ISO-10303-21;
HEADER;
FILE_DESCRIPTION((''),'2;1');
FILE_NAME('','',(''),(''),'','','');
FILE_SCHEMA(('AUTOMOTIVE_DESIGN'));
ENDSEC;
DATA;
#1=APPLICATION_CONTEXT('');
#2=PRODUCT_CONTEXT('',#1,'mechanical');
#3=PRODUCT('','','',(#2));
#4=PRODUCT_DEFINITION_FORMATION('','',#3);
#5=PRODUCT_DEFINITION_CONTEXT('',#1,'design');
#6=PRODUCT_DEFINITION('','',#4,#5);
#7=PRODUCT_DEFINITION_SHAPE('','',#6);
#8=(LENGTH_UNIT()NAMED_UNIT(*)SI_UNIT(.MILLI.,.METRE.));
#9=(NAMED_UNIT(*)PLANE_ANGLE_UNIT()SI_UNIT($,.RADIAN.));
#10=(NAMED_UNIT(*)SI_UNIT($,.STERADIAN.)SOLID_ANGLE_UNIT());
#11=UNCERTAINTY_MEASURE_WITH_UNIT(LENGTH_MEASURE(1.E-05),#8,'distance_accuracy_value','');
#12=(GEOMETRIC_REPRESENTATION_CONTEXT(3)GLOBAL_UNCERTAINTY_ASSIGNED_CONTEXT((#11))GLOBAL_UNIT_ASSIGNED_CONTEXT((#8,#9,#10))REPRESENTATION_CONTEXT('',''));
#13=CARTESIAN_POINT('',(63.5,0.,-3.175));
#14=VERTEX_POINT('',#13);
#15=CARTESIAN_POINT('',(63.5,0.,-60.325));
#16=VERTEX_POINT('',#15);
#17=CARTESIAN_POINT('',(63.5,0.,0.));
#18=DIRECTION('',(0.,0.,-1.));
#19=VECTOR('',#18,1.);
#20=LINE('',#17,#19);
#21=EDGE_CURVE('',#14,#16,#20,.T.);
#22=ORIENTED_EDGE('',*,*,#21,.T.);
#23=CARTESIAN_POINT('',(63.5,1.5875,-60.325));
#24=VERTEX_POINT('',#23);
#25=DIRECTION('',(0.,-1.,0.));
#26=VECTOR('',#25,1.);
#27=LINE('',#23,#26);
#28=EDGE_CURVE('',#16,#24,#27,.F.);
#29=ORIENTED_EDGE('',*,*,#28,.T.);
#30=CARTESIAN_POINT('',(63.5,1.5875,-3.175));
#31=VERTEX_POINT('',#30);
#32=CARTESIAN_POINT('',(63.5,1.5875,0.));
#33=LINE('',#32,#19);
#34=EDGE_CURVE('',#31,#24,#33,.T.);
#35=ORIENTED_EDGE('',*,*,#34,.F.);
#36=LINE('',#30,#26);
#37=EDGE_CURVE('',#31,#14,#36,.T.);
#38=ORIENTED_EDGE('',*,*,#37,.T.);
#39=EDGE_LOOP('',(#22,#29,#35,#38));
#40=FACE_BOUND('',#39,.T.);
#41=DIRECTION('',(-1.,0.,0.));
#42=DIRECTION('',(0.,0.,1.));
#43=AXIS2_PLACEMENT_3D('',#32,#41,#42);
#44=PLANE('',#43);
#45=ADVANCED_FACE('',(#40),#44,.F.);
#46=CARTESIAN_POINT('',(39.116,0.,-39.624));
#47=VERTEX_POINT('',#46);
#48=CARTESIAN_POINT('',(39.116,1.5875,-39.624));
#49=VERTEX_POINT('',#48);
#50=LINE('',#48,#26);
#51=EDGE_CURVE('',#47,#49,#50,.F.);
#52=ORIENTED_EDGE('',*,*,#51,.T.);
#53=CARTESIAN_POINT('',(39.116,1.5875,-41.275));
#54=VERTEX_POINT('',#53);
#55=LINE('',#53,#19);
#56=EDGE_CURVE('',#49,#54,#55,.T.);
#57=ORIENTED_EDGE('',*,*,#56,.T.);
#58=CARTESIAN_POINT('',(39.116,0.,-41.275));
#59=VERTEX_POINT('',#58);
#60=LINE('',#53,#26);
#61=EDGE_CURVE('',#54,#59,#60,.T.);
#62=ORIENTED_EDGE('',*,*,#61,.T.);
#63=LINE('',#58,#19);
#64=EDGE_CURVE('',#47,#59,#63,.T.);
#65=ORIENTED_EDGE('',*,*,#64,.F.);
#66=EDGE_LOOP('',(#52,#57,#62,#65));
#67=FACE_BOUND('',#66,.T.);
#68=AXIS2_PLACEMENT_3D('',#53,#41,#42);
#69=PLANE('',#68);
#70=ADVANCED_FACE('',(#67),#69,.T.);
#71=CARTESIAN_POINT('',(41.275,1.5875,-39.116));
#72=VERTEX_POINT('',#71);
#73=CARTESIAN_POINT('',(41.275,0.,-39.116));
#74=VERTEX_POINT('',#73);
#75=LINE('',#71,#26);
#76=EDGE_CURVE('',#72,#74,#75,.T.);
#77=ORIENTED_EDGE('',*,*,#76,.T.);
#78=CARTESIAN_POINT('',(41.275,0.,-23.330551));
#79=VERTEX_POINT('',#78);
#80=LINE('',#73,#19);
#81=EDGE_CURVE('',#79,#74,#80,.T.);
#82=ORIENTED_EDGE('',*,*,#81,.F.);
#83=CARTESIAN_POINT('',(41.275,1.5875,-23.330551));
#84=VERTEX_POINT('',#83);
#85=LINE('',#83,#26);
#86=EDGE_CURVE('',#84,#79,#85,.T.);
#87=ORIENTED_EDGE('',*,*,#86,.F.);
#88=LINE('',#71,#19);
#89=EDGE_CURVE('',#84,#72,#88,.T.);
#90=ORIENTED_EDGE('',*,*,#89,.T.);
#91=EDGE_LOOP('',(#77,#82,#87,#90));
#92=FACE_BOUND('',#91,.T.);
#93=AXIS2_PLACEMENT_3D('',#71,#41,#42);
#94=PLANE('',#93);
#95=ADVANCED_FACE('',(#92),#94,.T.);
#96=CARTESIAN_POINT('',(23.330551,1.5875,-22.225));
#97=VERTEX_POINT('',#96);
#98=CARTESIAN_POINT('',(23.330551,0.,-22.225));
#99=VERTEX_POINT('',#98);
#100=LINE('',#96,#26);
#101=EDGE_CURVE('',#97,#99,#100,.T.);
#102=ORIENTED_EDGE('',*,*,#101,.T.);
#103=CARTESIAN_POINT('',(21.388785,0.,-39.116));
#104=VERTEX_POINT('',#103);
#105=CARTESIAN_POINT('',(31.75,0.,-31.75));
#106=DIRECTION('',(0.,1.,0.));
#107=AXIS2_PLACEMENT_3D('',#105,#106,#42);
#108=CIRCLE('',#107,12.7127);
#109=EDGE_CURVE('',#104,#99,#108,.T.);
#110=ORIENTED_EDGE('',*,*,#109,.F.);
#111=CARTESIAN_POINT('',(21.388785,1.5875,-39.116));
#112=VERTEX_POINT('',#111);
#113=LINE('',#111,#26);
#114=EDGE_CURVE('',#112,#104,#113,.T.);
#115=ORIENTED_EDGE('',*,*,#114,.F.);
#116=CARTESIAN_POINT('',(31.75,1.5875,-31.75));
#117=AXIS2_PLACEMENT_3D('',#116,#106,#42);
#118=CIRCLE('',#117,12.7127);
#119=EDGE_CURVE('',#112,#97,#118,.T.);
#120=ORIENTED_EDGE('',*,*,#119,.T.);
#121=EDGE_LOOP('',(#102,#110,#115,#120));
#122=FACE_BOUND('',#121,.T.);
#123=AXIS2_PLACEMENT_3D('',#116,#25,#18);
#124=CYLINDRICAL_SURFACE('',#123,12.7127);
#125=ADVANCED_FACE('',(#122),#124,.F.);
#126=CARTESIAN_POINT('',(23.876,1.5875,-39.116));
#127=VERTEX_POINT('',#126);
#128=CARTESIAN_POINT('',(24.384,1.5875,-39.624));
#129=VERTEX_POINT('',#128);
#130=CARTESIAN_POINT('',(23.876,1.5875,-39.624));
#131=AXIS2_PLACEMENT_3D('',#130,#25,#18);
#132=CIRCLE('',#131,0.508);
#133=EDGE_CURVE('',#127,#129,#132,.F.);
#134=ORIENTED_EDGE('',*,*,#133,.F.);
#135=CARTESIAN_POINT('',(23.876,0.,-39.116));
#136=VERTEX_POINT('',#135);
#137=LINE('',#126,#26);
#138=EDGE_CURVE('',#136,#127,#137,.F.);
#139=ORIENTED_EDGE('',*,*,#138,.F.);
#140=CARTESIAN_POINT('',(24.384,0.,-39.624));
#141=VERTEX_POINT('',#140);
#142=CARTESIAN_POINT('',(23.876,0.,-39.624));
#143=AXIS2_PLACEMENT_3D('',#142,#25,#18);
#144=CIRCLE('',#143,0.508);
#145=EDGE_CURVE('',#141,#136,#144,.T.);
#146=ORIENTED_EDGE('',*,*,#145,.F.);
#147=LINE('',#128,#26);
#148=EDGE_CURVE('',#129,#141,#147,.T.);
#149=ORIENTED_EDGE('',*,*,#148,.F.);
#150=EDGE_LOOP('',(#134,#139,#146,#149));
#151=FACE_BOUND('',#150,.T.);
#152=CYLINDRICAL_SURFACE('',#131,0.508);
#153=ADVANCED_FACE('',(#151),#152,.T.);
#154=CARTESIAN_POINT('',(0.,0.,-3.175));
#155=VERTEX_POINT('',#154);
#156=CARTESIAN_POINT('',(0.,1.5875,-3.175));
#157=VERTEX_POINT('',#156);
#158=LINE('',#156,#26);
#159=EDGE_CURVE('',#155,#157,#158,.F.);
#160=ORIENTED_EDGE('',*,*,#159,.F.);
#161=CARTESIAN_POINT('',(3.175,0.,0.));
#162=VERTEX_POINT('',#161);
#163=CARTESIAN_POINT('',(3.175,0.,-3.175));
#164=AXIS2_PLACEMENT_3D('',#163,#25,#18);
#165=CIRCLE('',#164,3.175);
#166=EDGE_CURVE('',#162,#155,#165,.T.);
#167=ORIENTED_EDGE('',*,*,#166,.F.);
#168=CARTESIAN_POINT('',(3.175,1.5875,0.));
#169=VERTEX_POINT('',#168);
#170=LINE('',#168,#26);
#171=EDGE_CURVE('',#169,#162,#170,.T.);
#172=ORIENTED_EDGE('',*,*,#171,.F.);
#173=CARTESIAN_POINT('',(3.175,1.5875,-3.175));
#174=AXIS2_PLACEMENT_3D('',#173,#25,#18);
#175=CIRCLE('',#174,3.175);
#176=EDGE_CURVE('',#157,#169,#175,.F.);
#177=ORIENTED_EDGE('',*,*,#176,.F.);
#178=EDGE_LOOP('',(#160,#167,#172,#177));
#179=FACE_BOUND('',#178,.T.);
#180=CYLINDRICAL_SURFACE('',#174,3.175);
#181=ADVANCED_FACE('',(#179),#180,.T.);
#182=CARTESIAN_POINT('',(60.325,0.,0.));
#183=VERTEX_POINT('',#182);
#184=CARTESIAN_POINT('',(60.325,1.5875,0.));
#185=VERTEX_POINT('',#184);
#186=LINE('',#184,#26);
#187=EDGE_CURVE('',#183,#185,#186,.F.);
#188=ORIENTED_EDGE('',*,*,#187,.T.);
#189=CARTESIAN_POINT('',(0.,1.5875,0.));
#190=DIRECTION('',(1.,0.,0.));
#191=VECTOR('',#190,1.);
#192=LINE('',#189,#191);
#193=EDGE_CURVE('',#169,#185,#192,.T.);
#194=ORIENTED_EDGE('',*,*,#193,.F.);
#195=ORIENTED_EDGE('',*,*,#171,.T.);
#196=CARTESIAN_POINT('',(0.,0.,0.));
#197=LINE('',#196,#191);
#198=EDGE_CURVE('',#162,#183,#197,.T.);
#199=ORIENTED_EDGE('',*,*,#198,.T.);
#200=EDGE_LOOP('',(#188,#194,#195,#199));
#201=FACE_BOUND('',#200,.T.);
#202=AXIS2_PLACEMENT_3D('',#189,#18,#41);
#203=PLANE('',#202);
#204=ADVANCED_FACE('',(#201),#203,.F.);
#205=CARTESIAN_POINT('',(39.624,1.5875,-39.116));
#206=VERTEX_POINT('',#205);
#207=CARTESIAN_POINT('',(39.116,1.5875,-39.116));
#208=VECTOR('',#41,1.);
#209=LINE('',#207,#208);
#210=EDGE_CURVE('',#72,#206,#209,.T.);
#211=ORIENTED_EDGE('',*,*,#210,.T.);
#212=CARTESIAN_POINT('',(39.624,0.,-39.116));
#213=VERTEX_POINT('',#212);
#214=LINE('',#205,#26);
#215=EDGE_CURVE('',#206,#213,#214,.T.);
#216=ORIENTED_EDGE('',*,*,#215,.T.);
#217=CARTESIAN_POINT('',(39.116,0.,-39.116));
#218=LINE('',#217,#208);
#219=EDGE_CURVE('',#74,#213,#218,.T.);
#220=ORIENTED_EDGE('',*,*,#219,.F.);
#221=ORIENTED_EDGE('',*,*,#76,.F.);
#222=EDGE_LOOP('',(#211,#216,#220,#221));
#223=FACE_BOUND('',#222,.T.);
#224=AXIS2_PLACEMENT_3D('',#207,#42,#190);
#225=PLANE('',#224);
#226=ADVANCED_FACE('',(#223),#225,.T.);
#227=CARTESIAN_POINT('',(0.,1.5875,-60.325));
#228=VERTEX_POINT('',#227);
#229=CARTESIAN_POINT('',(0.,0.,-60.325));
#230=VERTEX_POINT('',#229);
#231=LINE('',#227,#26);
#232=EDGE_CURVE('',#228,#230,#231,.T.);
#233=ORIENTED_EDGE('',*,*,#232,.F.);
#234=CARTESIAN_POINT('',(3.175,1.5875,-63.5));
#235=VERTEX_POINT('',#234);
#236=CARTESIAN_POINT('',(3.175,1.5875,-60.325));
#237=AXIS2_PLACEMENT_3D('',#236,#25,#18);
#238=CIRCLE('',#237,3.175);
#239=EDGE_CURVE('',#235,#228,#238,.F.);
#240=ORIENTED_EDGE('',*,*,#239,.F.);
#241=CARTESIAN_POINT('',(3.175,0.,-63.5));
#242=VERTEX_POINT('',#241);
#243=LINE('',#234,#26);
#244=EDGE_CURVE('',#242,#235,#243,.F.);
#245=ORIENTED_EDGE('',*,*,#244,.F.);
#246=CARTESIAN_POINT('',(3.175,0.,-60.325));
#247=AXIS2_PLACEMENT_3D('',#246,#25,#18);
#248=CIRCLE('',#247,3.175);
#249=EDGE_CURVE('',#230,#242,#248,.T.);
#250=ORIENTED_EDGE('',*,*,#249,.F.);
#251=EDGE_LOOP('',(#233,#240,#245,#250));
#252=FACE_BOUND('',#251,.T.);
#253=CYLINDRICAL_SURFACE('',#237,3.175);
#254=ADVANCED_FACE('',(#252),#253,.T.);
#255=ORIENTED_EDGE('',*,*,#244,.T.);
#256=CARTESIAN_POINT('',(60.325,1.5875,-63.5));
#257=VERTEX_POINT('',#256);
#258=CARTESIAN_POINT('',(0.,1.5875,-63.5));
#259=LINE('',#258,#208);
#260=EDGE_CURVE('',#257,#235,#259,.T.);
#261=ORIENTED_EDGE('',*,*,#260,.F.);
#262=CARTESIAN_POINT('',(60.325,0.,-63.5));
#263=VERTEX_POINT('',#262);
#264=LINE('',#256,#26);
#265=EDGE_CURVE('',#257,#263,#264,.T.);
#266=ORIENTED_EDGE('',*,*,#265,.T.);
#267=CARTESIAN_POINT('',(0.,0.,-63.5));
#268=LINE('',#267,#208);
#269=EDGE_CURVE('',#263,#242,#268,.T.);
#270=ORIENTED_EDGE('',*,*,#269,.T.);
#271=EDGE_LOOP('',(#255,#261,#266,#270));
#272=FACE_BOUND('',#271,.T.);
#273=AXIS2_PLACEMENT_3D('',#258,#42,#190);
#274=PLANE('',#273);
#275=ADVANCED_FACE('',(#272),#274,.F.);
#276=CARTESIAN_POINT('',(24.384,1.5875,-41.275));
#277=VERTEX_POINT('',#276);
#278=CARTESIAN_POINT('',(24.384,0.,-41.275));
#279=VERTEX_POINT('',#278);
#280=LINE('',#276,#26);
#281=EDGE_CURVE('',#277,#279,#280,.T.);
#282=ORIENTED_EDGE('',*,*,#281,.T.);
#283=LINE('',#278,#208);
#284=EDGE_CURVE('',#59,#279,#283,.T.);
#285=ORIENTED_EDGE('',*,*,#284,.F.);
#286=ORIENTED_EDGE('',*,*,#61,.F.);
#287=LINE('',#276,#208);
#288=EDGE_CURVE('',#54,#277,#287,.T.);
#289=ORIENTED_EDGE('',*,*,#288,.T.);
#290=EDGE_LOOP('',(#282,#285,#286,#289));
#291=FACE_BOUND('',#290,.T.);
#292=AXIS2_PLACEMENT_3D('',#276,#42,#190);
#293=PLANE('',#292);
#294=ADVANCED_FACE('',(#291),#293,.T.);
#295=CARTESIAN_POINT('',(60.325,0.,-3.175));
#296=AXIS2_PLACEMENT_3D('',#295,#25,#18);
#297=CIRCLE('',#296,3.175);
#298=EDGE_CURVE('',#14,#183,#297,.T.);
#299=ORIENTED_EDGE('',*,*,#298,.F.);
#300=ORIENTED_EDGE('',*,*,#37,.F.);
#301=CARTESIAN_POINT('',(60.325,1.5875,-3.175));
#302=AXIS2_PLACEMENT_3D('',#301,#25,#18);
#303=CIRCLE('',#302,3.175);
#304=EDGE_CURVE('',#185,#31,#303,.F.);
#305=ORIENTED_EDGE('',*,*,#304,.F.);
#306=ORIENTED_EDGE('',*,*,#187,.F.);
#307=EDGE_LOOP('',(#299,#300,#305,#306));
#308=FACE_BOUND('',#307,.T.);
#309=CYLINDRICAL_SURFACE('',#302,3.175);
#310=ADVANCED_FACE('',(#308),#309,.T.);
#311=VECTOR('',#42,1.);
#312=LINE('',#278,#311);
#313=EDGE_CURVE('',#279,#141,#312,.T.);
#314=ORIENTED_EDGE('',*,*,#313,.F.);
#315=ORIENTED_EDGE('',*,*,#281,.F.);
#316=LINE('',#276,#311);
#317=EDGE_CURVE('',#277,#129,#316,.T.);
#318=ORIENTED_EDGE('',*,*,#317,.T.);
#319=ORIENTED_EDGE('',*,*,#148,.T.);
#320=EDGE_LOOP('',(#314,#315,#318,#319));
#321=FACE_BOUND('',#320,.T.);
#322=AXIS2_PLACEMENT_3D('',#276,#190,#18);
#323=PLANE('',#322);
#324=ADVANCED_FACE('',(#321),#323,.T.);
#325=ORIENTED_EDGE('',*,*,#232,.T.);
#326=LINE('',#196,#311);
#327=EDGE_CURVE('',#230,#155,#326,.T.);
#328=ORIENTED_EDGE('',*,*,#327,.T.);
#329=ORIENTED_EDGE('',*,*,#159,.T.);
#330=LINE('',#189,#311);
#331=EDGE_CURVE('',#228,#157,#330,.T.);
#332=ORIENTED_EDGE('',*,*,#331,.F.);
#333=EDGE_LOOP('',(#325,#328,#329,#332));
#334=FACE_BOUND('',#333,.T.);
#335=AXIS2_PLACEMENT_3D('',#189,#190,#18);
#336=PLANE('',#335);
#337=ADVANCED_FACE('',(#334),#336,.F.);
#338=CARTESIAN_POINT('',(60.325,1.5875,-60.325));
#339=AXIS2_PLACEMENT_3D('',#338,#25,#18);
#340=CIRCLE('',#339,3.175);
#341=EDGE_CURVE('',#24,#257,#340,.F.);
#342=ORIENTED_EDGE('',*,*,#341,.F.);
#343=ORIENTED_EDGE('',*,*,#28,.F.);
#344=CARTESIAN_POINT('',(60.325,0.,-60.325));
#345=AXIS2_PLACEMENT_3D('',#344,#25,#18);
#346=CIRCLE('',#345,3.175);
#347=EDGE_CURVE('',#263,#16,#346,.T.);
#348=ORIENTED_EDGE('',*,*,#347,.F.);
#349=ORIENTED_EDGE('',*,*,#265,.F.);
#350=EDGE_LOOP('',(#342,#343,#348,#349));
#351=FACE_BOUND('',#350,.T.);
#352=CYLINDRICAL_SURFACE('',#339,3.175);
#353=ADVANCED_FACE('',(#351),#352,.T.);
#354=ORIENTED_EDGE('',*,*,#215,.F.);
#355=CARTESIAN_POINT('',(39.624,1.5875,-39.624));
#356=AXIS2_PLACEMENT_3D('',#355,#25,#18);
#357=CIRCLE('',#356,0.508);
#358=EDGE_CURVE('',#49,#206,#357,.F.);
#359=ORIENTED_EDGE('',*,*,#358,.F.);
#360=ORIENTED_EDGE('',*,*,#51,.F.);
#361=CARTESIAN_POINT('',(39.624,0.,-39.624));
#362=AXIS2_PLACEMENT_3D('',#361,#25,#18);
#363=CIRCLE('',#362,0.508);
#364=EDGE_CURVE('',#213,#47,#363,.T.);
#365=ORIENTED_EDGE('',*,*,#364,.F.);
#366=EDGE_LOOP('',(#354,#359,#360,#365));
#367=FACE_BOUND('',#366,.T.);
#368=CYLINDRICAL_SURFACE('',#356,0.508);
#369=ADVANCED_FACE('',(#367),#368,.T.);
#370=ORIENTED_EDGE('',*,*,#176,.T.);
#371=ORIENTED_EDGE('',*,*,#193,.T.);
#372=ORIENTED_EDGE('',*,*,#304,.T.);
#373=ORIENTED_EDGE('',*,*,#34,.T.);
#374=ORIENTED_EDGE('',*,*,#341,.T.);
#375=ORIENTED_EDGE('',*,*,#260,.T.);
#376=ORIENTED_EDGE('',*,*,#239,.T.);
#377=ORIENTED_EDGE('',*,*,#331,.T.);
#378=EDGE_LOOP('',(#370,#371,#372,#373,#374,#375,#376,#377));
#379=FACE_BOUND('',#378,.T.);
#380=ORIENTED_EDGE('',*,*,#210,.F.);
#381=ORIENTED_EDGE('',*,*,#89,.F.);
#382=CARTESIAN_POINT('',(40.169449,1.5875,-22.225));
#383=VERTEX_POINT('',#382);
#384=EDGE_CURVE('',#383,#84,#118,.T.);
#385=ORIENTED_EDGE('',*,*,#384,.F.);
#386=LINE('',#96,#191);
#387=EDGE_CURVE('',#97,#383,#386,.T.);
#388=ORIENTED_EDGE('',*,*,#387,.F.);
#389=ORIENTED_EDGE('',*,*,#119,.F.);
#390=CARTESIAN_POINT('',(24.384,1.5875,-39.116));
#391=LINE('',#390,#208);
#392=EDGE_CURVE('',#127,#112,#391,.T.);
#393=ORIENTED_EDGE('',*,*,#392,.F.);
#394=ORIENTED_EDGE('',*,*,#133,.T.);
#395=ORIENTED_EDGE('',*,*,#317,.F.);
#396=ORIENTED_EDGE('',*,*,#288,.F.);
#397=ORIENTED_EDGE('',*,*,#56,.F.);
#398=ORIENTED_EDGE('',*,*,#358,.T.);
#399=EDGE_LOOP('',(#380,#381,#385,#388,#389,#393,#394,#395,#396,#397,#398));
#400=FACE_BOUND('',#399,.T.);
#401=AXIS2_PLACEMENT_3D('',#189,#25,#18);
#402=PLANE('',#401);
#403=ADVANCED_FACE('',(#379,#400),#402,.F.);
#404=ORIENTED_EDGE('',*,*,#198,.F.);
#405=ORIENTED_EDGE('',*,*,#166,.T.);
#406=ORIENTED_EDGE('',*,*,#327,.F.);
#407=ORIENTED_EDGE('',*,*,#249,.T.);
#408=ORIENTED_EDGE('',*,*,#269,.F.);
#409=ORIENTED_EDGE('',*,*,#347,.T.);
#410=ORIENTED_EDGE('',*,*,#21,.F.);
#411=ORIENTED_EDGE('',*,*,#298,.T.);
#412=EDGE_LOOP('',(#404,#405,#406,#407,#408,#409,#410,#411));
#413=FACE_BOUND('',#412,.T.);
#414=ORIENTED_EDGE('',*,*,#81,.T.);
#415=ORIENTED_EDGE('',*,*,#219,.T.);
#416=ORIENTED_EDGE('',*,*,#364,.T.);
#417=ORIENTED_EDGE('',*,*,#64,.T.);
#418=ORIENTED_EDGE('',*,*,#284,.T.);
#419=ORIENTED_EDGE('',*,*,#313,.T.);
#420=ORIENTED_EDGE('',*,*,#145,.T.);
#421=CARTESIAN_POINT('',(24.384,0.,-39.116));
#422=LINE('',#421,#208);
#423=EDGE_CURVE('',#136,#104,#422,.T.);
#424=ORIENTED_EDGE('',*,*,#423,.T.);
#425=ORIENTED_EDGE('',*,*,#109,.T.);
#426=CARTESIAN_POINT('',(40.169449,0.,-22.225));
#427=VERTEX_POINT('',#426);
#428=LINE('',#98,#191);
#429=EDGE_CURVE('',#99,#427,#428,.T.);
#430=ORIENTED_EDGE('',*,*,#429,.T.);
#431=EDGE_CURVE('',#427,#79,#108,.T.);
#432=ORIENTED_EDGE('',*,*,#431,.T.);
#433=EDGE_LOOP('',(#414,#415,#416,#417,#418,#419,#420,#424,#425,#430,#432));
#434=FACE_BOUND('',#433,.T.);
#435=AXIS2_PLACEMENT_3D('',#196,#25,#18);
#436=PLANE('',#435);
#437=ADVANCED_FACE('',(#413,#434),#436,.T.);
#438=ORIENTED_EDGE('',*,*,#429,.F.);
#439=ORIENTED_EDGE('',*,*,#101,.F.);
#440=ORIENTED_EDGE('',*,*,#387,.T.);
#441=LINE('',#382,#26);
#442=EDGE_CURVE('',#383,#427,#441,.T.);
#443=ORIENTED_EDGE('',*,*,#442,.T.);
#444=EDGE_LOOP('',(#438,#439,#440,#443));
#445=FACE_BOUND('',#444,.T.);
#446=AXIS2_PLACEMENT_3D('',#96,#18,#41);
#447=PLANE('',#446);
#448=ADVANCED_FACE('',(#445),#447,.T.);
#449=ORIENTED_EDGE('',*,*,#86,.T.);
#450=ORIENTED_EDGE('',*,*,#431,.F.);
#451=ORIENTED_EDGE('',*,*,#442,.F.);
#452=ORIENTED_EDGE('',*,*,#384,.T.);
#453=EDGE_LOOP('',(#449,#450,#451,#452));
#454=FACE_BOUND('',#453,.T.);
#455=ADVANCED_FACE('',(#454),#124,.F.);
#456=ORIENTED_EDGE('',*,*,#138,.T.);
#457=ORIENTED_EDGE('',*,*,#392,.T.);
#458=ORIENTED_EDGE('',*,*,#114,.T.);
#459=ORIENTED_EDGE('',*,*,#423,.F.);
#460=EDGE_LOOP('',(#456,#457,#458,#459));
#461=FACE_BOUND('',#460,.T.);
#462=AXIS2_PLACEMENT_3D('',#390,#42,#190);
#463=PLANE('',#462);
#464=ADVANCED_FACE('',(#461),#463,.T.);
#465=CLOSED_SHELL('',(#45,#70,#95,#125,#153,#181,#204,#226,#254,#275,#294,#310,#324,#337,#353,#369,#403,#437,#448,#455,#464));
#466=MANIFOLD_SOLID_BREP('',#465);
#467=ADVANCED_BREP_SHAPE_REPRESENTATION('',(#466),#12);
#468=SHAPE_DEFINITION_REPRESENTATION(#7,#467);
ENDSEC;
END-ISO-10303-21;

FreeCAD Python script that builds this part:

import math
import FreeCAD as App
import Part
import Sketcher
from FreeCAD import Vector
Q = App.Units.Quantity


def edges_at(feature, points):
    """Names of the edges that pass closest to the given points."""
    edges = feature.Shape.Edges
    near = lambda p: min(range(len(edges)), key=lambda i: edges[i].distToShape(Part.Vertex(*p))[0])
    return sorted({f"Edge{near(p) + 1}" for p in points})


def add_polygon(sketch, points):
    """Adds a closed chain of lines whose ends are joined by coincident constraints."""
    first, n = sketch.GeometryCount, len(points)
    for a, b in zip(points, points[1:] + points[:1]):
        sketch.addGeometry(Part.LineSegment(App.Vector(*a, 0), App.Vector(*b, 0)), False)
    for i in range(n):
        sketch.addConstraint(Sketcher.Constraint("Coincident", first + i, 2, first + (i + 1) % n, 1))

doc = App.newDocument("Part")
body = doc.addObject("PartDesign::Body", "Body")

# Sketch on XZ plane
sketch1 = body.newObject("Sketcher::SketchObject", "Sketch")
sketch1.AttachmentSupport = (doc.getObject("XZ_Plane"), [""])
sketch1.MapMode = "FlatFace"
add_polygon(sketch1, [(0, -63.5), (0, 0), (63.5, 0), (63.5, -63.5)])  # lines 0-3
sketch1.addGeometry(Part.LineSegment(Vector(24.4, -39.1, 0), Vector(24.4, -41.3, 0)), False)  # 4
sketch1.addGeometry(Part.LineSegment(Vector(24.4, -41.3, 0), Vector(39.1, -41.3, 0)), False)  # 5
sketch1.addGeometry(Part.LineSegment(Vector(39.1, -41.3, 0), Vector(39.1, -39.1, 0)), False)  # 6
sketch1.addGeometry(Part.LineSegment(Vector(39.1, -39.1, 0), Vector(41.3, -39.1, 0)), False)  # 7
sketch1.addGeometry(Part.LineSegment(Vector(41.3, -39.1, 0), Vector(41.3, -23.3, 0)), False)  # 8
sketch1.addGeometry(Part.ArcOfCircle(Part.Circle(Vector(31.7, -31.8, 0), Vector(0, 0, 1), 12.7), math.radians(41.47), math.radians(48.53)), False)  # 9
sketch1.addGeometry(Part.LineSegment(Vector(40.2, -22.2, 0), Vector(23.3, -22.2, 0)), False)  # 10
sketch1.addGeometry(Part.ArcOfCircle(Part.Circle(Vector(31.8, -31.8, 0), Vector(0, 0, 1), 12.7), math.radians(131), math.radians(215)), False)  # 11
sketch1.addGeometry(Part.LineSegment(Vector(21.4, -39.1, 0), Vector(24.4, -39.1, 0)), False)  # 12
sketch1.addConstraint(Sketcher.Constraint("Coincident", 4, 2, 5, 1))
sketch1.addConstraint(Sketcher.Constraint("Coincident", 5, 2, 6, 1))
sketch1.addConstraint(Sketcher.Constraint("Coincident", 6, 2, 7, 1))
sketch1.addConstraint(Sketcher.Constraint("Coincident", 7, 2, 8, 1))
sketch1.addConstraint(Sketcher.Constraint("Coincident", 8, 2, 9, 1))
sketch1.addConstraint(Sketcher.Constraint("Coincident", 9, 2, 10, 1))
sketch1.addConstraint(Sketcher.Constraint("Coincident", 10, 2, 11, 1))
sketch1.addConstraint(Sketcher.Constraint("Coincident", 11, 2, 12, 1))
sketch1.addConstraint(Sketcher.Constraint("Coincident", 12, 2, 4, 1))
sketch1.addConstraint(Sketcher.Constraint("Vertical", 0))
sketch1.addConstraint(Sketcher.Constraint("Horizontal", 1))
sketch1.addConstraint(Sketcher.Constraint("Vertical", 2))
sketch1.addConstraint(Sketcher.Constraint("Horizontal", 3))
sketch1.addConstraint(Sketcher.Constraint("Vertical", 4))
sketch1.addConstraint(Sketcher.Constraint("Horizontal", 5))
sketch1.addConstraint(Sketcher.Constraint("Vertical", 6))
sketch1.addConstraint(Sketcher.Constraint("Horizontal", 7))
sketch1.addConstraint(Sketcher.Constraint("Vertical", 8))
sketch1.addConstraint(Sketcher.Constraint("Horizontal", 10))
sketch1.addConstraint(Sketcher.Constraint("Horizontal", 12))
sketch1.addConstraint(Sketcher.Constraint("Coincident", 0, 2, -1, 1))
sketch1.addConstraint(Sketcher.Constraint("Coincident", 11, 3, 9, 3))
sketch1.addConstraint(Sketcher.Constraint("Equal", 9, 11))
sketch1.addConstraint(Sketcher.Constraint("Horizontal", 7, 2, 11, 2))
sketch1.addConstraint(Sketcher.Constraint("Equal", 3, 0))
sketch1.addConstraint(Sketcher.Constraint("Equal", 7, 4))
sketch1.addConstraint(Sketcher.Constraint("DistanceX", 1, 1, 1, 2, Q("2.5 in")))
sketch1.addConstraint(Sketcher.Constraint("DistanceX", 5, 1, 5, 2, Q("0.58 in")))
sketch1.addConstraint(Sketcher.Constraint("Radius", 9, Q("0.5005 in")))
sketch1.addConstraint(Sketcher.Constraint("DistanceX", 7, 1, 7, 2, Q("0.085 in")))
sketch1.addConstraint(Sketcher.Constraint("DistanceX", -1, 1, 9, 3, Q("1.25 in")))
sketch1.addConstraint(Sketcher.Constraint("DistanceY", 9, 3, -1, 1, Q("1.25 in")))
sketch1.addConstraint(Sketcher.Constraint("DistanceX", -1, 1, 4, 2, Q("0.96 in")))
sketch1.addConstraint(Sketcher.Constraint("DistanceY", 6, 2, -1, 1, Q("1.54 in")))
sketch1.addConstraint(Sketcher.Constraint("DistanceY", 4, 2, 10, 2, Q("0.75 in")))
pad1 = body.newObject("PartDesign::Pad", "Pad")
pad1.Profile = sketch1
pad1.Length = Q("0.0625 in")
pad1.Reversed = True
doc.recompute()

fillet = body.newObject("PartDesign::Fillet", "Fillet")
fillet.Base = (pad1, edges_at(pad1, [(39.116, 0.794, -39.116), (24.384, 0.794, -39.116)]))
fillet.Radius = Q("0.02 in")
doc.recompute()

fillet2 = body.newObject("PartDesign::Fillet", "Fillet001")
fillet2.Base = (fillet, edges_at(fillet, [
    (0, 0.794, -63.5),
    (63.5, 0.794, -63.5),
    (63.5, 0.794, 0),
    (0, 0.794, 0),
]))
fillet2.Radius = Q("0.125 in")

doc.recompute()
